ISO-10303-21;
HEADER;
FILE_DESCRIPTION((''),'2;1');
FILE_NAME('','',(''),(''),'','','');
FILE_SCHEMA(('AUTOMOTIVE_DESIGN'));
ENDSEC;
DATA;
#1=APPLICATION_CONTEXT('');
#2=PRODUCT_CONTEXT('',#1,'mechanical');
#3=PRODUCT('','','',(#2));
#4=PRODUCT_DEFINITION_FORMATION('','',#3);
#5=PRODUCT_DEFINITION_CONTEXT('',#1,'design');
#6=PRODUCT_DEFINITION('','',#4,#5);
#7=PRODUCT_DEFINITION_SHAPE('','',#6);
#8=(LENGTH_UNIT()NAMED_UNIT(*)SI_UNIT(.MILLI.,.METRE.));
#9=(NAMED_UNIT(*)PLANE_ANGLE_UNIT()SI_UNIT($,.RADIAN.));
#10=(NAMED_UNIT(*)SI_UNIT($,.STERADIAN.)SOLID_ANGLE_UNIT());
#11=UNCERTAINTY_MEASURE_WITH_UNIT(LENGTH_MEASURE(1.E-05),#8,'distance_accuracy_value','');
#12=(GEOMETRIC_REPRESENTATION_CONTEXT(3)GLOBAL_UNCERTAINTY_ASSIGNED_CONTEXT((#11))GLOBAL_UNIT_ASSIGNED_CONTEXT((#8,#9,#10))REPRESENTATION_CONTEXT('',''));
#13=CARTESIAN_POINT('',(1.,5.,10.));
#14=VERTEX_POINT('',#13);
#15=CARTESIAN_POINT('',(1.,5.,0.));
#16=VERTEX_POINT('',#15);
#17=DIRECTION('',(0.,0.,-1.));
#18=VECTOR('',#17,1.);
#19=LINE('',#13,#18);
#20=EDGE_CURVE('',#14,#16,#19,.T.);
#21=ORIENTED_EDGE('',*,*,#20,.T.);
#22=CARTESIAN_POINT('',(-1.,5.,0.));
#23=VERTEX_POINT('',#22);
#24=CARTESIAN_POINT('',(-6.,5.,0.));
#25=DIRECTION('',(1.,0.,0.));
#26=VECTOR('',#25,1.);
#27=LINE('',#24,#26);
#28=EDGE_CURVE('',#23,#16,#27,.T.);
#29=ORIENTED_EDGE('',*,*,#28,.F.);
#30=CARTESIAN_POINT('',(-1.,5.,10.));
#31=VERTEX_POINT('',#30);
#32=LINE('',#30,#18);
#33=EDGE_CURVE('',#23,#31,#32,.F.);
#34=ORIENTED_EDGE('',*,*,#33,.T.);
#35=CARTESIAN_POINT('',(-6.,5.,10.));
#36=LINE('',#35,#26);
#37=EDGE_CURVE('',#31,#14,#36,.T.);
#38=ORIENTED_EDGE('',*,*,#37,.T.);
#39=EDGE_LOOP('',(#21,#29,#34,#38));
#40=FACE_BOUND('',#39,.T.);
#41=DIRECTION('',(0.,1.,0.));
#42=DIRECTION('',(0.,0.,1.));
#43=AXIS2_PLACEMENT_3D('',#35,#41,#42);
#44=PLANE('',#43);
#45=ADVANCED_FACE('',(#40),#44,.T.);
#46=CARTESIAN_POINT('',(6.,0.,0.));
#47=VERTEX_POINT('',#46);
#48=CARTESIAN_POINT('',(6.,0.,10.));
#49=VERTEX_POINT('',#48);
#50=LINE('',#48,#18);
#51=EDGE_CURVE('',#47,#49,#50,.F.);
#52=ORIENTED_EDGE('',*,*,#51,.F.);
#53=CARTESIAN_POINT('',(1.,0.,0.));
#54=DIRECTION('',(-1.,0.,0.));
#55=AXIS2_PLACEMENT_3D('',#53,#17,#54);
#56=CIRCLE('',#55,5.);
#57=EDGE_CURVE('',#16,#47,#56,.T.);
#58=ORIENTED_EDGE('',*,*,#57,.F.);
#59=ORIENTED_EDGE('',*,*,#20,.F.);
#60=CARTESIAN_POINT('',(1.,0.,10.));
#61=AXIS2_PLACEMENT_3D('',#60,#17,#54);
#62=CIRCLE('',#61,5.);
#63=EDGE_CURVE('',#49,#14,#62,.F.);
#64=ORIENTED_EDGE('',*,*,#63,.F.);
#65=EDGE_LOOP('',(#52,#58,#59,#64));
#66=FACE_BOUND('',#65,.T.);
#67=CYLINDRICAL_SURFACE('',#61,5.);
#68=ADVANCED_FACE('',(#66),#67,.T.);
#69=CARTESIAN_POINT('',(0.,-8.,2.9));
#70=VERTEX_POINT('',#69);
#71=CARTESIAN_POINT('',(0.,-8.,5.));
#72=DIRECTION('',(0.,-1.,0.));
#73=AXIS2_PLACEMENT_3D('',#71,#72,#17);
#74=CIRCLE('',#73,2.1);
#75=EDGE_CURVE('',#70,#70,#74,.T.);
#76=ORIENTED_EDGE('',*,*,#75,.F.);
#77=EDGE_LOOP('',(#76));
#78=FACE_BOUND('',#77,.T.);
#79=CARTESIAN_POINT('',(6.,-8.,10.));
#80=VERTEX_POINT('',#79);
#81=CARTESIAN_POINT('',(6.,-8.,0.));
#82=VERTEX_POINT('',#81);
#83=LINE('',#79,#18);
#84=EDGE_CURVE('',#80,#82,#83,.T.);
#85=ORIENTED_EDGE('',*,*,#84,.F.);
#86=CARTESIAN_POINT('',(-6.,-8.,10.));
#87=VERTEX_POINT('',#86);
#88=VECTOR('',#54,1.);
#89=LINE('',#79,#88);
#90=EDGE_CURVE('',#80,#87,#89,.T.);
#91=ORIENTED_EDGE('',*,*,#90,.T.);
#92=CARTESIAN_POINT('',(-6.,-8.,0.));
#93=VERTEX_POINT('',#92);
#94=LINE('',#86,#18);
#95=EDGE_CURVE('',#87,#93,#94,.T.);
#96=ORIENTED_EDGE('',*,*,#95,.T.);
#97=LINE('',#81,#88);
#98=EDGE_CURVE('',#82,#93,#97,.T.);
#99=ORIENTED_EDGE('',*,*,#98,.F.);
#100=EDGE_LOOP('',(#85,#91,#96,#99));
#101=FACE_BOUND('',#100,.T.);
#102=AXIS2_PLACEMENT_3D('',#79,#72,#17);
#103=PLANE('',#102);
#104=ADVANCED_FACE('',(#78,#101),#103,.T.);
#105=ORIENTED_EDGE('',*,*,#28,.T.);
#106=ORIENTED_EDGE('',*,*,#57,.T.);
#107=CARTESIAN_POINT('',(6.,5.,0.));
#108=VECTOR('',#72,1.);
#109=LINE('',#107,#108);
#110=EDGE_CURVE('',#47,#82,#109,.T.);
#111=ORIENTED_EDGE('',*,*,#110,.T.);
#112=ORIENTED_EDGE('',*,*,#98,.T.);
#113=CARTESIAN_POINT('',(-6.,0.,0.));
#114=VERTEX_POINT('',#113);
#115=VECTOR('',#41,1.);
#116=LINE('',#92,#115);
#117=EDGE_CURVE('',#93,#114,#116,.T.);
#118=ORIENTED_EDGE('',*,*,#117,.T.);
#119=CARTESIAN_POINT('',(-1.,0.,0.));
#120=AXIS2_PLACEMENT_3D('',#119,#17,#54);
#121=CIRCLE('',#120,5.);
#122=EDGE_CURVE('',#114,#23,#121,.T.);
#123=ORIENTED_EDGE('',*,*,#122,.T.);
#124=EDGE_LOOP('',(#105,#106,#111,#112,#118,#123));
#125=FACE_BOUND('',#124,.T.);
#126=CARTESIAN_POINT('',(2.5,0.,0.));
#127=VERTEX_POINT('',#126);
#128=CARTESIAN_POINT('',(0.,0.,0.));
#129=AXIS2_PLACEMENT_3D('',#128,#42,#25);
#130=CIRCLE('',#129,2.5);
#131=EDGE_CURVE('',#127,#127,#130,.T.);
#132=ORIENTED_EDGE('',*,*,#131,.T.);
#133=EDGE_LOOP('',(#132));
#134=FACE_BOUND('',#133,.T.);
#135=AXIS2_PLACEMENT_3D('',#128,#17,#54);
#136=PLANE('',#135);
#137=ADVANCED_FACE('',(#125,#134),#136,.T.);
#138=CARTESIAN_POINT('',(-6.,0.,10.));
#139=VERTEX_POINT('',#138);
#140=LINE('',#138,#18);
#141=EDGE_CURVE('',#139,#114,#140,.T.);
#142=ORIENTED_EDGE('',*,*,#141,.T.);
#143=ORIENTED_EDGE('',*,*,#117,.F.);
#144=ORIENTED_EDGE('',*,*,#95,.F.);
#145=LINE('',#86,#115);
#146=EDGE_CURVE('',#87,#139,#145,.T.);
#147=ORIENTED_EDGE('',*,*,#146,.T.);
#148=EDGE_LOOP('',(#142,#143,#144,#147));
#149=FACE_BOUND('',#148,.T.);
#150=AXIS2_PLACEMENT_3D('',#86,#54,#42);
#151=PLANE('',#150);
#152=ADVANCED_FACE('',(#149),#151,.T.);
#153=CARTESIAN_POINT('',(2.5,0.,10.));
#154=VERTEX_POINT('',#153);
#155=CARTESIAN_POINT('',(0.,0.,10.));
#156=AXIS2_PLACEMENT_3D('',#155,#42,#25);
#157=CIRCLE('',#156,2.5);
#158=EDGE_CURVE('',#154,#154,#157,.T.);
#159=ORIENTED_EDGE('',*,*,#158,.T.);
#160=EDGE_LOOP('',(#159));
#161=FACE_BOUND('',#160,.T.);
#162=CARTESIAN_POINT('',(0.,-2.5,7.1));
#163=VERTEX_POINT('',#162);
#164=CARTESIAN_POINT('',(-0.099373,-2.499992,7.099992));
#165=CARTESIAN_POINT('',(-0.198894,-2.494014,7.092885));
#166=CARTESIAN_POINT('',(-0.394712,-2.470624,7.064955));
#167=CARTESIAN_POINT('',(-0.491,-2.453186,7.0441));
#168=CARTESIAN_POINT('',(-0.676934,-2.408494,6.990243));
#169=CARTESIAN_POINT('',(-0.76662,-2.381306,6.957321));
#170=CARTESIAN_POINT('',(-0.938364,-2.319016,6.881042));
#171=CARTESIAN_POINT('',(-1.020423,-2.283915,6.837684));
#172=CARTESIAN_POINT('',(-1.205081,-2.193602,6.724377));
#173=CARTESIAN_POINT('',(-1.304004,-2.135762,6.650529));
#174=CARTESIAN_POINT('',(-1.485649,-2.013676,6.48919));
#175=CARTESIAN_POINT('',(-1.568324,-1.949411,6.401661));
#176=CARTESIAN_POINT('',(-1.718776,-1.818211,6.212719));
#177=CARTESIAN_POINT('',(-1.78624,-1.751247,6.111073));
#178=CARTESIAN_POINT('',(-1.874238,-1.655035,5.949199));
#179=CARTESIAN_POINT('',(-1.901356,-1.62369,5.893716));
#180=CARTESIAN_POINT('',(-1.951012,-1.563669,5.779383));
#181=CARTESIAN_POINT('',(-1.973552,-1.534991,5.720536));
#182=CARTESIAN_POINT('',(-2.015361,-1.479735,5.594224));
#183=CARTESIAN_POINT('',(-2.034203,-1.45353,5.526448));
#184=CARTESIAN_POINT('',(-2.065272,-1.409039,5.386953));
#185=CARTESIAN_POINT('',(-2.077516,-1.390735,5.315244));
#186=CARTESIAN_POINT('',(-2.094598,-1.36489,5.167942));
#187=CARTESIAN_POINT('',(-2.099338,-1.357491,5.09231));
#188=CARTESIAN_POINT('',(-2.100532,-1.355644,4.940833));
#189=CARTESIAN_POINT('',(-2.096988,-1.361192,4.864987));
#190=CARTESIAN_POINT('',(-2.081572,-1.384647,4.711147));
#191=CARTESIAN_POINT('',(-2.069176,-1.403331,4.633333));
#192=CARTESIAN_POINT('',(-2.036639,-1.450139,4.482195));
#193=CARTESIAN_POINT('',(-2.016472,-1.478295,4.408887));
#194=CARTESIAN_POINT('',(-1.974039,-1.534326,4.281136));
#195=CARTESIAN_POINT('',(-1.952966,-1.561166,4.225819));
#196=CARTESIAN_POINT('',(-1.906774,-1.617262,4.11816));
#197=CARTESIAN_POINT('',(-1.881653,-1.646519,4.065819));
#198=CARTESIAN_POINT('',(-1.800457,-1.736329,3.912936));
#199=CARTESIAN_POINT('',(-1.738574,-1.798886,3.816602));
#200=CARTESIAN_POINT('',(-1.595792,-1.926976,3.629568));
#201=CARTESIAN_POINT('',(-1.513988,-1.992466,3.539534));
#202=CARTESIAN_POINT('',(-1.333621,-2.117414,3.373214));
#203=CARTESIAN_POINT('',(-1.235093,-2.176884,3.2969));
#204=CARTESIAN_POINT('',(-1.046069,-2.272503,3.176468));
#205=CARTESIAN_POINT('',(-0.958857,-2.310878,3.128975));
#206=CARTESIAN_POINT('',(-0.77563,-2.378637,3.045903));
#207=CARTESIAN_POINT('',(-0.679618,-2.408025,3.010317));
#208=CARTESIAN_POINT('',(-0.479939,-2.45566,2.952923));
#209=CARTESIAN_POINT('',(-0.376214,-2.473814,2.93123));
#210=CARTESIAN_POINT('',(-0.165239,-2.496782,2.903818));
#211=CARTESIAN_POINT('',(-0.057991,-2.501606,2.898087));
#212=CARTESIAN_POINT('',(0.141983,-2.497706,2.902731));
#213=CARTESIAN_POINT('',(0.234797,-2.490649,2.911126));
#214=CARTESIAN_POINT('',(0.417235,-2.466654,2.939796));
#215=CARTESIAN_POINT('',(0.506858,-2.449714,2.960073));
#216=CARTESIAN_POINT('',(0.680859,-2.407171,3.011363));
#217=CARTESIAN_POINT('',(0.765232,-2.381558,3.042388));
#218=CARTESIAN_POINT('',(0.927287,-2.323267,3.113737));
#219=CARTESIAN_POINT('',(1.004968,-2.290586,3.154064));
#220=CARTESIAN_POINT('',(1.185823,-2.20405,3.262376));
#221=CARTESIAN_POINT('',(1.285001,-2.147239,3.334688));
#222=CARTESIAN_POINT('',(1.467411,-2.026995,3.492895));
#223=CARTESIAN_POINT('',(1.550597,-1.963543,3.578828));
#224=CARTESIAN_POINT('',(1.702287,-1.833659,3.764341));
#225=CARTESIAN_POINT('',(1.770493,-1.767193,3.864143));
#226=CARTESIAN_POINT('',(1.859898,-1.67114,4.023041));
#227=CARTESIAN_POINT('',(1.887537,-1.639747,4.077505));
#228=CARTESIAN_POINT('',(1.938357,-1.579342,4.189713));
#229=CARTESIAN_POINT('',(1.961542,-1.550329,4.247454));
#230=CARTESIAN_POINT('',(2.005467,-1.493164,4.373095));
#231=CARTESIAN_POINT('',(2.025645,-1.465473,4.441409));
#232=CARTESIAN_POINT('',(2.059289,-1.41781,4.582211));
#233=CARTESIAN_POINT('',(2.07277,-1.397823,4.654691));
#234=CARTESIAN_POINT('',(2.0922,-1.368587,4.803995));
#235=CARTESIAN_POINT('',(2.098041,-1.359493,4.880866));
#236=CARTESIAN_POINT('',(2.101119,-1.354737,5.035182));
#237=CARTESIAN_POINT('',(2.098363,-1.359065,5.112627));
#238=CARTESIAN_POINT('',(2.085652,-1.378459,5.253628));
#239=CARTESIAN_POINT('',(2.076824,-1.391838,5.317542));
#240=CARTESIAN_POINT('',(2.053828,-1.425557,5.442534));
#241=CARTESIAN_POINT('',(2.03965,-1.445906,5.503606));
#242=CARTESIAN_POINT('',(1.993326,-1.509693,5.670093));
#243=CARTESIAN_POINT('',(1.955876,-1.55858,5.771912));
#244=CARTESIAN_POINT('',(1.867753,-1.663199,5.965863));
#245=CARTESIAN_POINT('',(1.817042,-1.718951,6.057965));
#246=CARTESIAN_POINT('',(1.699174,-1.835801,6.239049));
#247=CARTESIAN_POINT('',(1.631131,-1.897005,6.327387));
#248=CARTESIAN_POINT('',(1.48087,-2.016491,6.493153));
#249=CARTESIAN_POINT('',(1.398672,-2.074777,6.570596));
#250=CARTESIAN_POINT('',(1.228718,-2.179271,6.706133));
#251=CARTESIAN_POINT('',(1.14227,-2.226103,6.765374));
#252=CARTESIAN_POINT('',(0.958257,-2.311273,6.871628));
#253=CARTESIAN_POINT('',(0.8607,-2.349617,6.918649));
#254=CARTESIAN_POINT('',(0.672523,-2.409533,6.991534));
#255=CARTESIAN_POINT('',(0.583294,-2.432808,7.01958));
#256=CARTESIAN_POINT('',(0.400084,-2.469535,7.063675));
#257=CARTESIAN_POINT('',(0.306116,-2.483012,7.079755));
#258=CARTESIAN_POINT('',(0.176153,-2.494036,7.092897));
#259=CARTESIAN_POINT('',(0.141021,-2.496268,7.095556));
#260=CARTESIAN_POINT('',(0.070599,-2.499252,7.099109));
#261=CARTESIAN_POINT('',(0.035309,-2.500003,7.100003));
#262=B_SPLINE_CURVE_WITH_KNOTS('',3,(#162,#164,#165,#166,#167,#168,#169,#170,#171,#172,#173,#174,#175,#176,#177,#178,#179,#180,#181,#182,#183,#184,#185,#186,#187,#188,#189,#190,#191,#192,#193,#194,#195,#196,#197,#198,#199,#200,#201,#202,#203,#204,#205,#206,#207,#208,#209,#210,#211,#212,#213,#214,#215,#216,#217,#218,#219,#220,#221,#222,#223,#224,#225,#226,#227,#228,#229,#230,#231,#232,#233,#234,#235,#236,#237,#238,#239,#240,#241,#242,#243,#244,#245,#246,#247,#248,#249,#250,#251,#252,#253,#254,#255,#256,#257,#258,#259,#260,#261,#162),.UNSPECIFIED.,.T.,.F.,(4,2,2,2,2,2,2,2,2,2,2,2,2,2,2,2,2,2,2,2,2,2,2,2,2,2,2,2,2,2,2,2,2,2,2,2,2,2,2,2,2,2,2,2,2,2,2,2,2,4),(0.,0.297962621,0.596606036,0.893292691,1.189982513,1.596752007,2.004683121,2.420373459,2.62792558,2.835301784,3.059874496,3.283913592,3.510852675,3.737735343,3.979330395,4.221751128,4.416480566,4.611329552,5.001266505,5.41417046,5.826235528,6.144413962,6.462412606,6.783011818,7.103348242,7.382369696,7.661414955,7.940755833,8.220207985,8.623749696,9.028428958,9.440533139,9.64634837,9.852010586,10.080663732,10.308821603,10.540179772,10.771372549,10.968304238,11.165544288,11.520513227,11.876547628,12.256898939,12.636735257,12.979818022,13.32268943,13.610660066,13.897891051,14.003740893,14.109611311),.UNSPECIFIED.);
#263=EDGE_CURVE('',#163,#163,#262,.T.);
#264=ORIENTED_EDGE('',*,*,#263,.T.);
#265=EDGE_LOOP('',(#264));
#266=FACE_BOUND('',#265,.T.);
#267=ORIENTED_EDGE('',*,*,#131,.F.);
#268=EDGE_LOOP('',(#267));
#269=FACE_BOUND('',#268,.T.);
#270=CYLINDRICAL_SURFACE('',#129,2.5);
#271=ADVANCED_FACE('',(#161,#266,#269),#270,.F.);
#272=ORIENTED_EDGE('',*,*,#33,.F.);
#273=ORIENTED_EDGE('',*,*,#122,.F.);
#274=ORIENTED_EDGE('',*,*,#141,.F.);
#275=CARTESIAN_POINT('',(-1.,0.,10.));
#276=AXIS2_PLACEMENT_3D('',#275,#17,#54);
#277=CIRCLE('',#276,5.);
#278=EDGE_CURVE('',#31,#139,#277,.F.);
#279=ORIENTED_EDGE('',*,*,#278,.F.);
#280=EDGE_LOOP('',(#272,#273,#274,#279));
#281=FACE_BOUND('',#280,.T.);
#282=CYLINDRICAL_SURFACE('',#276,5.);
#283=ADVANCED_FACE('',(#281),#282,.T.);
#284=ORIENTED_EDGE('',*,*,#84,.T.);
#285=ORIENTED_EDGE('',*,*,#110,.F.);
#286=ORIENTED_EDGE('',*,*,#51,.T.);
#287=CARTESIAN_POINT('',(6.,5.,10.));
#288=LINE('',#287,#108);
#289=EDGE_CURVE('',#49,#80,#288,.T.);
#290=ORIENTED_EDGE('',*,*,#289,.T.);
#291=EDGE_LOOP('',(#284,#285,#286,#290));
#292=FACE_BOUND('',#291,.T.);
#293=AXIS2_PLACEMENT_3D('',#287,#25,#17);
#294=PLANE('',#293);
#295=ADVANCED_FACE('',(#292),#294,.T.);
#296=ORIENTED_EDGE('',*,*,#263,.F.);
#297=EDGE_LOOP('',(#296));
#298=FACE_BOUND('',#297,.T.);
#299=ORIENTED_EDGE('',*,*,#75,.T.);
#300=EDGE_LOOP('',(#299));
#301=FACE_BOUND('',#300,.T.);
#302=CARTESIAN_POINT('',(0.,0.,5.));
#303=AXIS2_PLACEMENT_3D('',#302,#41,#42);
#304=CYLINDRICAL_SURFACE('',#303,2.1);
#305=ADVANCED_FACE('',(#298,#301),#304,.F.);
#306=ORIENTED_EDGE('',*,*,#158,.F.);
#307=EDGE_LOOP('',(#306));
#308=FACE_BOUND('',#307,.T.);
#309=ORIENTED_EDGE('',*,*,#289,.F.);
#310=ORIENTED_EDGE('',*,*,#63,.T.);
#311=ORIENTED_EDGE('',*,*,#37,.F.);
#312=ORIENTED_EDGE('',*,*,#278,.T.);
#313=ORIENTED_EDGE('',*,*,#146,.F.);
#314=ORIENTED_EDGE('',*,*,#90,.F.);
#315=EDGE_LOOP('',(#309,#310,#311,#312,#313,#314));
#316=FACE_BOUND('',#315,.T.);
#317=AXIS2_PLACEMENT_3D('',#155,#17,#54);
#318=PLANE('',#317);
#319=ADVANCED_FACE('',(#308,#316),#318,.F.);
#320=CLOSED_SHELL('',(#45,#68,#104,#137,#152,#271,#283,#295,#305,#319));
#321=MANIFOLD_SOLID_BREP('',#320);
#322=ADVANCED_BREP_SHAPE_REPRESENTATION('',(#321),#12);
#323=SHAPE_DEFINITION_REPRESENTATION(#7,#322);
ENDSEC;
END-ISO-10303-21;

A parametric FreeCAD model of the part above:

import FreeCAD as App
import Part
import Sketcher
Q = App.Units.Quantity


def edges_at(feature, points):
    """Names of the edges that pass closest to the given points."""
    edges = feature.Shape.Edges
    near = lambda p: min(range(len(edges)), key=lambda i: edges[i].distToShape(Part.Vertex(*p))[0])
    return sorted({f"Edge{near(p) + 1}" for p in points})

doc = App.newDocument("Part")
body = doc.addObject("PartDesign::Body", "Body")

sketch1 = body.newObject("Sketcher::SketchObject", "Sketch")
sketch1.AttachmentSupport = (doc.getObject("XY_Plane"), [""])
sketch1.MapMode = "FlatFace"
sketch1.addGeometry(Part.LineSegment(App.Vector(6, 5, 0), App.Vector(6, -8, 0)), False)
sketch1.addGeometry(Part.LineSegment(App.Vector(6, -8, 0), App.Vector(-6, -8, 0)), False)
sketch1.addGeometry(Part.LineSegment(App.Vector(-6, -8, 0), App.Vector(-6, 5, 0)), False)
sketch1.addGeometry(Part.LineSegment(App.Vector(-6, 5, 0), App.Vector(6, 5, 0)), False)
sketch1.addConstraint(Sketcher.Constraint("Coincident", 0, 2, 1, 1))
sketch1.addConstraint(Sketcher.Constraint("Coincident", 1, 2, 2, 1))
sketch1.addConstraint(Sketcher.Constraint("Coincident", 2, 2, 3, 1))
sketch1.addConstraint(Sketcher.Constraint("Coincident", 3, 2, 0, 1))
sketch1.addConstraint(Sketcher.Constraint("Vertical", 0))
sketch1.addConstraint(Sketcher.Constraint("Horizontal", 1))
sketch1.addConstraint(Sketcher.Constraint("Vertical", 2))
sketch1.addConstraint(Sketcher.Constraint("Horizontal", 3))
sketch1.addConstraint(Sketcher.Constraint("DistanceX", 1, 2, 1, 1, Q("12 mm")))
sketch1.addConstraint(Sketcher.Constraint("DistanceY", 0, 2, 0, 1, Q("13 mm")))
sketch1.addConstraint(Sketcher.Constraint("DistanceX", -1, 1, 0, 2, Q("6 mm")))
sketch1.addConstraint(Sketcher.Constraint("DistanceY", 0, 2, -1, 1, Q("8 mm")))
pad1 = body.newObject("PartDesign::Pad", "Pad")
pad1.Profile = sketch1
pad1.Length = 10

sketch2 = body.newObject("Sketcher::SketchObject", "Sketch001")
sketch2.AttachmentSupport = (doc.getObject("XZ_Plane"), [""])
sketch2.MapMode = "FlatFace"
sketch2.addGeometry(Part.LineSegment(App.Vector(0, 0, 0), App.Vector(0, 10, 0)), False)
sketch2.addGeometry(Part.LineSegment(App.Vector(0, 10, 0), App.Vector(2.5, 10, 0)), False)
sketch2.addGeometry(Part.LineSegment(App.Vector(2.5, 10, 0), App.Vector(2.5, 0, 0)), False)
sketch2.addGeometry(Part.LineSegment(App.Vector(2.5, 0, 0), App.Vector(0, 0, 0)), False)
sketch2.addConstraint(Sketcher.Constraint("Coincident", 0, 2, 1, 1))
sketch2.addConstraint(Sketcher.Constraint("Coincident", 1, 2, 2, 1))
sketch2.addConstraint(Sketcher.Constraint("Coincident", 2, 2, 3, 1))
sketch2.addConstraint(Sketcher.Constraint("Coincident", 3, 2, 0, 1))
sketch2.addConstraint(Sketcher.Constraint("Vertical", 0))
sketch2.addConstraint(Sketcher.Constraint("Horizontal", 1))
sketch2.addConstraint(Sketcher.Constraint("Vertical", 2))
sketch2.addConstraint(Sketcher.Constraint("Horizontal", 3))
sketch2.addConstraint(Sketcher.Constraint("Coincident", 3, 2, -1, 1))
sketch2.addConstraint(Sketcher.Constraint("DistanceY", 0, 1, 0, 2, Q("10 mm")))
sketch2.addConstraint(Sketcher.Constraint("DistanceX", 1, 1, 1, 2, Q("2.5 mm")))
groove = body.newObject("PartDesign::Groove", "Groove")
groove.Profile = sketch2
groove.ReferenceAxis = (sketch2, ["V_Axis"])
groove.Angle = 360

sketch3 = body.newObject("Sketcher::SketchObject", "Sketch002")
sketch3.AttachmentSupport = (doc.getObject("YZ_Plane"), [""])
sketch3.MapMode = "FlatFace"
sketch3.addGeometry(Part.LineSegment(App.Vector(-8, 5, 0), App.Vector(0, 5, 0)), False)
sketch3.addGeometry(Part.LineSegment(App.Vector(0, 5, 0), App.Vector(0, 7.1, 0)), False)
sketch3.addGeometry(Part.LineSegment(App.Vector(0, 7.1, 0), App.Vector(-8, 7.1, 0)), False)
sketch3.addGeometry(Part.LineSegment(App.Vector(-8, 7.1, 0), App.Vector(-8, 5, 0)), False)
sketch3.addGeometry(Part.LineSegment(App.Vector(0, 5, 0), App.Vector(-8, 5, 0)), True)
sketch3.addConstraint(Sketcher.Constraint("Coincident", 0, 2, 1, 1))
sketch3.addConstraint(Sketcher.Constraint("Coincident", 1, 2, 2, 1))
sketch3.addConstraint(Sketcher.Constraint("Coincident", 2, 2, 3, 1))
sketch3.addConstraint(Sketcher.Constraint("Coincident", 3, 2, 0, 1))
sketch3.addConstraint(Sketcher.Constraint("Horizontal", 0))
sketch3.addConstraint(Sketcher.Constraint("Vertical", 1))
sketch3.addConstraint(Sketcher.Constraint("Horizontal", 2))
sketch3.addConstraint(Sketcher.Constraint("Vertical", 3))
sketch3.addConstraint(Sketcher.Constraint("Horizontal", 4))
sketch3.addConstraint(Sketcher.Constraint("Coincident", 4, 1, 0, 2))
sketch3.addConstraint(Sketcher.Constraint("PointOnObject", 0, 2, -2))
sketch3.addConstraint(Sketcher.Constraint("Vertical", 2, 2, 4, 2))
sketch3.addConstraint(Sketcher.Constraint("DistanceX", 0, 1, 0, 2, Q("8 mm")))
sketch3.addConstraint(Sketcher.Constraint("DistanceY", 1, 1, 1, 2, Q("2.1 mm")))
sketch3.addConstraint(Sketcher.Constraint("DistanceY", -1, 1, 0, 2, Q("5 mm")))
groove2 = body.newObject("PartDesign::Groove", "Groove001")
groove2.Profile = sketch3
groove2.ReferenceAxis = (sketch3, ["Axis0"])
groove2.Angle = 360
doc.recompute()

fillet = body.newObject("PartDesign::Fillet", "Fillet")
fillet.Base = (groove2, edges_at(groove2, [(6, 5, 5), (-6, 5, 5)]))
fillet.Radius = 5

doc.recompute()
